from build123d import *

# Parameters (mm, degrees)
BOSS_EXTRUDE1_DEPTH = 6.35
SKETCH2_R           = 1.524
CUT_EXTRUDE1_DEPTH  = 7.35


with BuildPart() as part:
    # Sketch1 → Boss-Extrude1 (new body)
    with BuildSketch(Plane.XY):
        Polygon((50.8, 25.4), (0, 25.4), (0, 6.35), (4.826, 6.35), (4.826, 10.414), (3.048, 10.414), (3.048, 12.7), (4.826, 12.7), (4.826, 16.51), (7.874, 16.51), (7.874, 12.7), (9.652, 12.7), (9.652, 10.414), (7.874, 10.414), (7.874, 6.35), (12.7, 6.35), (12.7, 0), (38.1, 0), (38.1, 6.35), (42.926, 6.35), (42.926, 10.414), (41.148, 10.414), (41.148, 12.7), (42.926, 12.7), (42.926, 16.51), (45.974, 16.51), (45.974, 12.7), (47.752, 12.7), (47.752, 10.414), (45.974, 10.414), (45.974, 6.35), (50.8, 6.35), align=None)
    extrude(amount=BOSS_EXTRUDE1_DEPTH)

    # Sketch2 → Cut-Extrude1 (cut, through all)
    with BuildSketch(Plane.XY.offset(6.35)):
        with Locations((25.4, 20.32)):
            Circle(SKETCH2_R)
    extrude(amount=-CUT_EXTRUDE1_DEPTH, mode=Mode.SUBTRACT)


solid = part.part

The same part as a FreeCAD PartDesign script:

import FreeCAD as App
import Part
import Sketcher
from FreeCAD import Vector
Q = App.Units.Quantity

doc = App.newDocument("Part")
body = doc.addObject("PartDesign::Body", "Body")

sketch1 = doc.addObject("Sketcher::SketchObject", "Sketch")
body.addObject(sketch1)
sketch1.AttachmentSupport = (doc.XY_Plane, [""])
sketch1.MapMode = "FlatFace"
sketch1.addGeometry(Part.LineSegment(Vector(50.8, 25.4, 0), Vector(0, 25.4, 0)), False)
sketch1.addGeometry(Part.LineSegment(Vector(0, 25.4, 0), Vector(0, 6.3, 0)), False)
sketch1.addGeometry(Part.LineSegment(Vector(0, 6.3, 0), Vector(4.8, 6.3, 0)), False)
sketch1.addGeometry(Part.LineSegment(Vector(4.8, 6.3, 0), Vector(4.8, 10.4, 0)), False)
sketch1.addGeometry(Part.LineSegment(Vector(4.8, 10.4, 0), Vector(3, 10.4, 0)), False)
sketch1.addGeometry(Part.LineSegment(Vector(3, 10.4, 0), Vector(3, 12.7, 0)), False)
sketch1.addGeometry(Part.LineSegment(Vector(3, 12.7, 0), Vector(4.8, 12.7, 0)), False)
sketch1.addGeometry(Part.LineSegment(Vector(4.8, 12.7, 0), Vector(4.8, 16.5, 0)), False)
sketch1.addGeometry(Part.LineSegment(Vector(4.8, 16.5, 0), Vector(7.9, 16.5, 0)), False)
sketch1.addGeometry(Part.LineSegment(Vector(7.9, 16.5, 0), Vector(7.9, 12.7, 0)), False)
sketch1.addGeometry(Part.LineSegment(Vector(7.9, 12.7, 0), Vector(9.7, 12.7, 0)), False)
sketch1.addGeometry(Part.LineSegment(Vector(9.7, 12.7, 0), Vector(9.7, 10.4, 0)), False)
sketch1.addGeometry(Part.LineSegment(Vector(9.7, 10.4, 0), Vector(7.9, 10.4, 0)), False)
sketch1.addGeometry(Part.LineSegment(Vector(7.9, 10.4, 0), Vector(7.9, 6.3, 0)), False)
sketch1.addGeometry(Part.LineSegment(Vector(7.9, 6.3, 0), Vector(12.7, 6.3, 0)), False)
sketch1.addGeometry(Part.LineSegment(Vector(12.7, 6.3, 0), Vector(12.7, 0, 0)), False)
sketch1.addGeometry(Part.LineSegment(Vector(12.7, 0, 0), Vector(38.1, 0, 0)), False)
sketch1.addGeometry(Part.LineSegment(Vector(38.1, 0, 0), Vector(38.1, 6.3, 0)), False)
sketch1.addGeometry(Part.LineSegment(Vector(38.1, 6.3, 0), Vector(42.9, 6.3, 0)), False)
sketch1.addGeometry(Part.LineSegment(Vector(42.9, 6.3, 0), Vector(42.9, 10.4, 0)), False)
sketch1.addGeometry(Part.LineSegment(Vector(42.9, 10.4, 0), Vector(41.1, 10.4, 0)), False)
sketch1.addGeometry(Part.LineSegment(Vector(41.1, 10.4, 0), Vector(41.1, 12.7, 0)), False)
sketch1.addGeometry(Part.LineSegment(Vector(41.1, 12.7, 0), Vector(42.9, 12.7, 0)), False)
sketch1.addGeometry(Part.LineSegment(Vector(42.9, 12.7, 0), Vector(42.9, 16.5, 0)), False)
sketch1.addGeometry(Part.LineSegment(Vector(42.9, 16.5, 0), Vector(46, 16.5, 0)), False)
sketch1.addGeometry(Part.LineSegment(Vector(46, 16.5, 0), Vector(46, 12.7, 0)), False)
sketch1.addGeometry(Part.LineSegment(Vector(46, 12.7, 0), Vector(47.8, 12.7, 0)), False)
sketch1.addGeometry(Part.LineSegment(Vector(47.8, 12.7, 0), Vector(47.8, 10.4, 0)), False)
sketch1.addGeometry(Part.LineSegment(Vector(47.8, 10.4, 0), Vector(46, 10.4, 0)), False)
sketch1.addGeometry(Part.LineSegment(Vector(46, 10.4, 0), Vector(46, 6.3, 0)), False)
sketch1.addGeometry(Part.LineSegment(Vector(46, 6.3, 0), Vector(50.8, 6.3, 0)), False)
sketch1.addGeometry(Part.LineSegment(Vector(50.8, 6.3, 0), Vector(50.8, 25.4, 0)), False)
sketch1.addConstraint(Sketcher.Constraint("Coincident", 0, 2, 1, 1))
sketch1.addConstraint(Sketcher.Constraint("Coincident", 1, 2, 2, 1))
sketch1.addConstraint(Sketcher.Constraint("Coincident", 2, 2, 3, 1))
sketch1.addConstraint(Sketcher.Constraint("Coincident", 3, 2, 4, 1))
sketch1.addConstraint(Sketcher.Constraint("Coincident", 4, 2, 5, 1))
sketch1.addConstraint(Sketcher.Constraint("Coincident", 5, 2, 6, 1))
sketch1.addConstraint(Sketcher.Constraint("Coincident", 6, 2, 7, 1))
sketch1.addConstraint(Sketcher.Constraint("Coincident", 7, 2, 8, 1))
sketch1.addConstraint(Sketcher.Constraint("Coincident", 8, 2, 9, 1))
sketch1.addConstraint(Sketcher.Constraint("Coincident", 9, 2, 10, 1))
sketch1.addConstraint(Sketcher.Constraint("Coincident", 10, 2, 11, 1))
sketch1.addConstraint(Sketcher.Constraint("Coincident", 11, 2, 12, 1))
sketch1.addConstraint(Sketcher.Constraint("Coincident", 12, 2, 13, 1))
sketch1.addConstraint(Sketcher.Constraint("Coincident", 13, 2, 14, 1))
sketch1.addConstraint(Sketcher.Constraint("Coincident", 14, 2, 15, 1))
sketch1.addConstraint(Sketcher.Constraint("Coincident", 15, 2, 16, 1))
sketch1.addConstraint(Sketcher.Constraint("Coincident", 16, 2, 17, 1))
sketch1.addConstraint(Sketcher.Constraint("Coincident", 17, 2, 18, 1))
sketch1.addConstraint(Sketcher.Constraint("Coincident", 18, 2, 19, 1))
sketch1.addConstraint(Sketcher.Constraint("Coincident", 19, 2, 20, 1))
sketch1.addConstraint(Sketcher.Constraint("Coincident", 20, 2, 21, 1))
sketch1.addConstraint(Sketcher.Constraint("Coincident", 21, 2, 22, 1))
sketch1.addConstraint(Sketcher.Constraint("Coincident", 22, 2, 23, 1))
sketch1.addConstraint(Sketcher.Constraint("Coincident", 23, 2, 24, 1))
sketch1.addConstraint(Sketcher.Constraint("Coincident", 24, 2, 25, 1))
sketch1.addConstraint(Sketcher.Constraint("Coincident", 25, 2, 26, 1))
sketch1.addConstraint(Sketcher.Constraint("Coincident", 26, 2, 27, 1))
sketch1.addConstraint(Sketcher.Constraint("Coincident", 27, 2, 28, 1))
sketch1.addConstraint(Sketcher.Constraint("Coincident", 28, 2, 29, 1))
sketch1.addConstraint(Sketcher.Constraint("Coincident", 29, 2, 30, 1))
sketch1.addConstraint(Sketcher.Constraint("Coincident", 30, 2, 31, 1))
sketch1.addConstraint(Sketcher.Constraint("Coincident", 31, 2, 0, 1))
sketch1.addConstraint(Sketcher.Constraint("Horizontal", 0))
sketch1.addConstraint(Sketcher.Constraint("Vertical", 1))
sketch1.addConstraint(Sketcher.Constraint("Horizontal", 2))
sketch1.addConstraint(Sketcher.Constraint("Vertical", 3))
sketch1.addConstraint(Sketcher.Constraint("Horizontal", 4))
sketch1.addConstraint(Sketcher.Constraint("Vertical", 5))
sketch1.addConstraint(Sketcher.Constraint("Horizontal", 6))
sketch1.addConstraint(Sketcher.Constraint("Vertical", 7))
sketch1.addConstraint(Sketcher.Constraint("Horizontal", 8))
sketch1.addConstraint(Sketcher.Constraint("Vertical", 9))
sketch1.addConstraint(Sketcher.Constraint("Horizontal", 10))
sketch1.addConstraint(Sketcher.Constraint("Vertical", 11))
sketch1.addConstraint(Sketcher.Constraint("Horizontal", 12))
sketch1.addConstraint(Sketcher.Constraint("Vertical", 13))
sketch1.addConstraint(Sketcher.Constraint("Horizontal", 14))
sketch1.addConstraint(Sketcher.Constraint("Vertical", 15))
sketch1.addConstraint(Sketcher.Constraint("Horizontal", 16))
sketch1.addConstraint(Sketcher.Constraint("Vertical", 17))
sketch1.addConstraint(Sketcher.Constraint("Horizontal", 18))
sketch1.addConstraint(Sketcher.Constraint("Vertical", 19))
sketch1.addConstraint(Sketcher.Constraint("Horizontal", 20))
sketch1.addConstraint(Sketcher.Constraint("Vertical", 21))
sketch1.addConstraint(Sketcher.Constraint("Horizontal", 22))
sketch1.addConstraint(Sketcher.Constraint("Vertical", 23))
sketch1.addConstraint(Sketcher.Constraint("Horizontal", 24))
sketch1.addConstraint(Sketcher.Constraint("Vertical", 25))
sketch1.addConstraint(Sketcher.Constraint("Horizontal", 26))
sketch1.addConstraint(Sketcher.Constraint("Vertical", 27))
sketch1.addConstraint(Sketcher.Constraint("Horizontal", 28))
sketch1.addConstraint(Sketcher.Constraint("Vertical", 29))
sketch1.addConstraint(Sketcher.Constraint("Horizontal", 30))
sketch1.addConstraint(Sketcher.Constraint("Vertical", 31))
sketch1.addConstraint(Sketcher.Constraint("PointOnObject", 0, 2, -2))
sketch1.addConstraint(Sketcher.Constraint("PointOnObject", 15, 2, -1))
sketch1.addConstraint(Sketcher.Constraint("Horizontal", 6, 2, 9, 2))
sketch1.addConstraint(Sketcher.Constraint("Horizontal", 4, 2, 11, 2))
sketch1.addConstraint(Sketcher.Constraint("Horizontal", 2, 2, 13, 2))
sketch1.addConstraint(Sketcher.Constraint("Horizontal", 14, 2, 17, 2))
sketch1.addConstraint(Sketcher.Constraint("Horizontal", 12, 2, 19, 2))
sketch1.addConstraint(Sketcher.Constraint("Horizontal", 10, 2, 21, 2))
sketch1.addConstraint(Sketcher.Constraint("Horizontal", 8, 2, 23, 2))
sketch1.addConstraint(Sketcher.Constraint("Horizontal", 22, 2, 25, 2))
sketch1.addConstraint(Sketcher.Constraint("Horizontal", 20, 2, 27, 2))
sketch1.addConstraint(Sketcher.Constraint("Horizontal", 18, 2, 29, 2))
sketch1.addConstraint(Sketcher.Constraint("Vertical", 3, 2, 6, 2))
sketch1.addConstraint(Sketcher.Constraint("Vertical", 9, 2, 12, 2))
sketch1.addConstraint(Sketcher.Constraint("Vertical", 19, 2, 22, 2))
sketch1.addConstraint(Sketcher.Constraint("Vertical", 25, 2, 28, 2))
sketch1.addConstraint(Sketcher.Constraint("Equal", 6, 10))
sketch1.addConstraint(Sketcher.Constraint("Equal", 2, 14))
sketch1.addConstraint(Sketcher.Constraint("Equal", 14, 18))
sketch1.addConstraint(Sketcher.Constraint("Equal", 12, 20))
sketch1.addConstraint(Sketcher.Constraint("Equal", 8, 24))
sketch1.addConstraint(Sketcher.Constraint("Equal", 22, 26))
sketch1.addConstraint(Sketcher.Constraint("Equal", 18, 30))
sketch1.addConstraint(Sketcher.Constraint("DistanceX", 0, 2, 0, 1, Q("2 in")))
sketch1.addConstraint(Sketcher.Constraint("DistanceX", 16, 1, 16, 2, Q("1 in")))
sketch1.addConstraint(Sketcher.Constraint("DistanceY", -1, 1, 0, 2, Q("1 in")))
sketch1.addConstraint(Sketcher.Constraint("DistanceX", 2, 1, 2, 2, Q("0.19 in")))
sketch1.addConstraint(Sketcher.Constraint("DistanceX", 4, 2, 4, 1, Q("0.07 in")))
sketch1.addConstraint(Sketcher.Constraint("DistanceY", 1, 2, 1, 1, Q("0.75 in")))
sketch1.addConstraint(Sketcher.Constraint("DistanceY", 3, 1, 3, 2, Q("0.16 in")))
sketch1.addConstraint(Sketcher.Constraint("DistanceY", 5, 1, 5, 2, Q("0.09 in")))
sketch1.addConstraint(Sketcher.Constraint("DistanceY", 7, 1, 7, 2, Q("0.15 in")))
pad1 = doc.addObject("PartDesign::Pad", "Pad")
body.addObject(pad1)
pad1.Profile = sketch1
pad1.Length = Q("0.25 in")

sketch2 = doc.addObject("Sketcher::SketchObject", "Sketch001")
body.addObject(sketch2)
sketch2.AttachmentSupport = (doc.XY_Plane, [""])
sketch2.MapMode = "FlatFace"
sketch2.AttachmentOffset = App.Placement(Vector(0, 0, 0.25 * 25.4), App.Rotation())
sketch2.addGeometry(Part.Circle(Vector(25.4, 20.3, 0), Vector(0, 0, 1), 1.5), False)
sketch2.addConstraint(Sketcher.Constraint("Diameter", 0, Q("0.12 in")))
sketch2.addConstraint(Sketcher.Constraint("DistanceX", -1, 1, 0, 3, Q("1 in")))
sketch2.addConstraint(Sketcher.Constraint("DistanceY", -1, 1, 0, 3, Q("0.8 in")))
pocket1 = doc.addObject("PartDesign::Pocket", "Pocket")
body.addObject(pocket1)
pocket1.Profile = sketch2
pocket1.Type = "ThroughAll"

doc.recompute()
